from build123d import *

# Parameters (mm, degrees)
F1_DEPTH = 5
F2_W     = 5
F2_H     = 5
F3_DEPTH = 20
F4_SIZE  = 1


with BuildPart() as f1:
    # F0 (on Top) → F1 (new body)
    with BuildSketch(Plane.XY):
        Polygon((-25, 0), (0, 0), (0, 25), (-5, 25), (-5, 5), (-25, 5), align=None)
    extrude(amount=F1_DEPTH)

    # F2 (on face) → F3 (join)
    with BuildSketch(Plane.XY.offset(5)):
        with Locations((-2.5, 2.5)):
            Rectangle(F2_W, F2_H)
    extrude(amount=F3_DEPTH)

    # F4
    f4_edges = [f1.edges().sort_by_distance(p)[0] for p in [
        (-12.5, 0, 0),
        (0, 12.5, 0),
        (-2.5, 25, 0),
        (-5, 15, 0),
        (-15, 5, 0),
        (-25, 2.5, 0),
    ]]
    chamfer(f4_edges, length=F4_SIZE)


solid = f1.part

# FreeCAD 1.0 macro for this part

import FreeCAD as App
import Part
import Sketcher
from FreeCAD import Vector


def edges_at(feature, points):
    """Names of the edges that pass closest to the given points."""
    edges = feature.Shape.Edges
    near = lambda p: min(range(len(edges)), key=lambda i: edges[i].distToShape(Part.Vertex(*p))[0])
    return sorted({f"Edge{near(p) + 1}" for p in points})


def add_polygon(sketch, points):
    """Adds a closed chain of lines whose ends are joined by coincident constraints."""
    first, n = sketch.GeometryCount, len(points)
    for a, b in zip(points, points[1:] + points[:1]):
        sketch.addGeometry(Part.LineSegment(App.Vector(*a, 0), App.Vector(*b, 0)), False)
    for i in range(n):
        sketch.addConstraint(Sketcher.Constraint("Coincident", first + i, 2, first + (i + 1) % n, 1))

doc = App.newDocument("Part")
body = doc.addObject("PartDesign::Body", "Body")

sketch1 = body.newObject("Sketcher::SketchObject", "Sketch")
sketch1.AttachmentSupport = (doc.getObject("XY_Plane"), [""])
sketch1.MapMode = "FlatFace"
add_polygon(sketch1, [(-25, 0), (0, 0), (0, 25), (-5, 25), (-5, 5), (-25, 5)])
sketch1.addConstraint([
    Sketcher.Constraint("Horizontal", 0),
    Sketcher.Constraint("Vertical", 1),
    Sketcher.Constraint("Horizontal", 2),
    Sketcher.Constraint("Vertical", 3),
    Sketcher.Constraint("Horizontal", 4),
    Sketcher.Constraint("Vertical", 5),
    Sketcher.Constraint("Coincident", 0, 2, -1, 1),
    Sketcher.Constraint("Equal", 0, 1),
    Sketcher.Constraint("Equal", 4, 3),
    Sketcher.Constraint("DistanceX", 0, 1, 0, 2, 25.0),
    Sketcher.Constraint("DistanceX", 2, 2, 2, 1, 5.0),
])
pad1 = body.newObject("PartDesign::Pad", "Pad")
pad1.Profile = sketch1
pad1.Length = 5

sketch2 = body.newObject("Sketcher::SketchObject", "Sketch001")
sketch2.AttachmentSupport = (doc.getObject("XY_Plane"), [""])
sketch2.MapMode = "FlatFace"
sketch2.AttachmentOffset = App.Placement(Vector(0, 0, 5), App.Rotation())
add_polygon(sketch2, [(-5, 5), (-5, 0), (0, 0), (0, 5)])
sketch2.addConstraint([
    Sketcher.Constraint("Vertical", 0),
    Sketcher.Constraint("Horizontal", 1),
    Sketcher.Constraint("Vertical", 2),
    Sketcher.Constraint("Horizontal", 3),
    Sketcher.Constraint("Coincident", 1, 2, -1, 1),
    Sketcher.Constraint("Equal", 3, 0),
    Sketcher.Constraint("DistanceX", 1, 1, 1, 2, 5.0),
])
pad2 = body.newObject("PartDesign::Pad", "Pad001")
pad2.Profile = sketch2
pad2.Length = 20
doc.recompute()

chamfer = body.newObject("PartDesign::Chamfer", "Chamfer")
chamfer.Base = (pad2, edges_at(pad2, [
    (-12.5, 0, 0),
    (0, 12.5, 0),
    (-2.5, 25, 0),
    (-5, 15, 0),
    (-15, 5, 0),
    (-25, 2.5, 0),
]))
chamfer.Size = 1

doc.recompute()
